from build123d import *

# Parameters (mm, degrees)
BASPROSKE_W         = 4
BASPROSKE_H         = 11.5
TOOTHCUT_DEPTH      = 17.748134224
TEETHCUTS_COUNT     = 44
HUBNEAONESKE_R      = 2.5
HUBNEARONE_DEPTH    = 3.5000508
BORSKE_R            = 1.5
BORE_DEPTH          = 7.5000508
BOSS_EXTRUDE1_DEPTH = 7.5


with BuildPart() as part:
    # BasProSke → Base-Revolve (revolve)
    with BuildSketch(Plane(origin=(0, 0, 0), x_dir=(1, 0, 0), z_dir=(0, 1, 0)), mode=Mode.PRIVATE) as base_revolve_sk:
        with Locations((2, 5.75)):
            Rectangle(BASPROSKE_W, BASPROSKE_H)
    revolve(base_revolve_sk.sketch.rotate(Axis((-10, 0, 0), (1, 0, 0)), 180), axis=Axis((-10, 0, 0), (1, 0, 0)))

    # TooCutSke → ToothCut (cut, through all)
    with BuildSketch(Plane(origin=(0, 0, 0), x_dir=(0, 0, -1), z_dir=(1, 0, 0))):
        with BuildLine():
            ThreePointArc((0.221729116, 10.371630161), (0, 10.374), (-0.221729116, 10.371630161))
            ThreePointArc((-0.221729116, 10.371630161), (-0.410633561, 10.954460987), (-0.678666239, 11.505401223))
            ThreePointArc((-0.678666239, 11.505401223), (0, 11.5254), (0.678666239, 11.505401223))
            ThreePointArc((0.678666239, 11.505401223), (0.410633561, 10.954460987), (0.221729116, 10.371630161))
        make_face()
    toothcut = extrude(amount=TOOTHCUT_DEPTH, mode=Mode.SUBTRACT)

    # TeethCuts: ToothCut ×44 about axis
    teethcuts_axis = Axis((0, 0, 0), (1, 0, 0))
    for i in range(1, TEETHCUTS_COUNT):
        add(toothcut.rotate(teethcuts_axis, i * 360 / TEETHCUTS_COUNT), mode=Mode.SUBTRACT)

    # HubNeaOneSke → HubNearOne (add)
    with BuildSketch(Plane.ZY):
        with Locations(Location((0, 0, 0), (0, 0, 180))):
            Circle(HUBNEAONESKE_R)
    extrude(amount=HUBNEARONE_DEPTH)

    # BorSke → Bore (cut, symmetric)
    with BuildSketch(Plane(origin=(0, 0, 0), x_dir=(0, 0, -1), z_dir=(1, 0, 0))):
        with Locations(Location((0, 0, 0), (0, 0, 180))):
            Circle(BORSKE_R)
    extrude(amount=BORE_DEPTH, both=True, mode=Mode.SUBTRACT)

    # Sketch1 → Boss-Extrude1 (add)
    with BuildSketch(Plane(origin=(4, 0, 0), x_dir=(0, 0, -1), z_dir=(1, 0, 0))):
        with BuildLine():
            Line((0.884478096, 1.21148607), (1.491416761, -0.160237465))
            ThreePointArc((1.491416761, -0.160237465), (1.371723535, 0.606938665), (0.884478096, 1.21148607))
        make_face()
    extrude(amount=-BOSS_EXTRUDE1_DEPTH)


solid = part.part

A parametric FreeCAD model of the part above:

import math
import FreeCAD as App
import Part
import Sketcher


def add_polygon(sketch, points):
    """Adds a closed chain of lines whose ends are joined by coincident constraints."""
    first, n = sketch.GeometryCount, len(points)
    for a, b in zip(points, points[1:] + points[:1]):
        sketch.addGeometry(Part.LineSegment(App.Vector(*a, 0), App.Vector(*b, 0)), False)
    for i in range(n):
        sketch.addConstraint(Sketcher.Constraint("Coincident", first + i, 2, first + (i + 1) % n, 1))

doc = App.newDocument("Part")
params = doc.addObject("Spreadsheet::Sheet", "Params")
for row, (alias, value) in enumerate([
    ("sketch1_width", "4 mm"),
    ("sketch1_height", "11.5 mm"),
    ("revolution_angle", "360 deg"),
    ("sketch2_radius", "4.4 mm"),
    ("sketch3_diameter", "5 mm"),
    ("pad1_length", "3.500051 mm"),
    ("sketch4_diameter", "3 mm"),
    ("pocket2_length", "15.000102 mm"),
    ("sketch5_radius", "1.5 mm"),
    ("sketch5_length", "1.5 mm"),
    ("pad2_length", "7.5 mm"),
], start=1):
    params.set(f"A{row}", alias)
    params.set(f"B{row}", "=" + value)
    params.setAlias(f"B{row}", alias)

body = doc.addObject("PartDesign::Body", "Body")

# Sketch on XZ plane
sketch1 = body.newObject("Sketcher::SketchObject", "Sketch")
sketch1.AttachmentSupport = (doc.getObject("XZ_Plane"), [""])
sketch1.MapMode = "FlatFace"
add_polygon(sketch1, [(0, -11.5), (0, 0), (4, 0), (4, -11.5)])  # lines 0-3
sketch1.addConstraint([
    Sketcher.Constraint("Vertical", 0),
    Sketcher.Constraint("Horizontal", 1),
    Sketcher.Constraint("Vertical", 2),
    Sketcher.Constraint("Horizontal", 3),
    Sketcher.Constraint("Coincident", 0, 2, -1, 1),
    Sketcher.Constraint("DistanceX", 1, 1, 1, 2, 4.0),
    Sketcher.Constraint("DistanceY", 0, 1, 0, 2, 11.5),
])
sketch1.setExpression("Constraints[9]", "Params.sketch1_width")
sketch1.setExpression("Constraints[10]", "Params.sketch1_height")
revolution = body.newObject("PartDesign::Revolution", "Revolution")
revolution.Profile = sketch1
revolution.ReferenceAxis = (sketch1, ["H_Axis"])
revolution.setExpression("Angle", "Params.revolution_angle")

# Sketch on YZ plane
sketch2 = body.newObject("Sketcher::SketchObject", "Sketch001")
sketch2.AttachmentSupport = (doc.getObject("YZ_Plane"), [""])
sketch2.MapMode = "FlatFace"
sketch2.addGeometry([
    Part.ArcOfCircle(Part.Circle(App.Vector(0.000001, 0, 0), App.Vector(0, 0, 1), 10.373999), math.radians(-1.224707), math.radians(1.224707)),
    Part.ArcOfCircle(Part.Circle(App.Vector(9.309708, -4.491661, 0), App.Vector(0, 0, 1), 4.4), math.radians(60.06474), math.radians(76.03401)),
    Part.ArcOfCircle(Part.Circle(App.Vector(0, 0, 0), App.Vector(0, 0, 1), 11.5254), math.radians(-3.37578), math.radians(3.37578)),
    Part.ArcOfCircle(Part.Circle(App.Vector(9.309708, 4.491661, 0), App.Vector(0, 0, 1), 4.4), math.radians(-76.03401), math.radians(-60.06474)),
], False)
sketch2.addConstraint([
    Sketcher.Constraint("Coincident", 0, 1, 1, 2),
    Sketcher.Constraint("Coincident", 1, 1, 2, 1),
    Sketcher.Constraint("Coincident", 2, 2, 3, 2),
    Sketcher.Constraint("Coincident", 3, 1, 0, 2),
    Sketcher.Constraint("Coincident", 0, 3, -1, 1),
    Sketcher.Constraint("Coincident", 2, 3, -1, 1),
    Sketcher.Constraint("Equal", 1, 3),
    Sketcher.Constraint("Symmetric", 1, 3, 3, 3, -1),
    Sketcher.Constraint("Radius", 1, 4.4),
    Sketcher.Constraint("Radius", 0, 10.373999),
    Sketcher.Constraint("Radius", 2, 11.5254),
    Sketcher.Constraint("DistanceX", -1, 1, 1, 1, 11.505401),
    Sketcher.Constraint("DistanceX", -1, 1, 1, 3, 9.309708),
])
sketch2.setExpression("Constraints[8]", "Params.sketch2_radius")
pocket1 = body.newObject("PartDesign::Pocket", "Pocket")
pocket1.Profile = sketch2
pocket1.Type = "ThroughAll"
pocket1.Reversed = True
doc.recompute()

polarpattern = body.newObject("PartDesign::PolarPattern", "PolarPattern")
polarpattern.Originals = [pocket1]
polarpattern.Axis = (doc.getObject("X_Axis"), [""])
polarpattern.Angle = 360
polarpattern.Occurrences = 44
body.Tip = polarpattern

# Sketch on YZ plane
sketch3 = body.newObject("Sketcher::SketchObject", "Sketch002")
sketch3.AttachmentSupport = (doc.getObject("YZ_Plane"), [""])
sketch3.MapMode = "FlatFace"
sketch3.addGeometry(Part.Circle(App.Vector(0, 0, 0), App.Vector(0, 0, 1), 2.5), False)
sketch3.addConstraint([
    Sketcher.Constraint("Coincident", 0, 3, -1, 1),
    Sketcher.Constraint("Diameter", 0, 5.0),
])
sketch3.setExpression("Constraints[1]", "Params.sketch3_diameter")
pad1 = body.newObject("PartDesign::Pad", "Pad")
pad1.Profile = sketch3
pad1.setExpression("Length", "Params.pad1_length")
pad1.Reversed = True

# Sketch on YZ plane
sketch4 = body.newObject("Sketcher::SketchObject", "Sketch003")
sketch4.AttachmentSupport = (doc.getObject("YZ_Plane"), [""])
sketch4.MapMode = "FlatFace"
sketch4.addGeometry(Part.Circle(App.Vector(0, 0, 0), App.Vector(0, 0, 1), 1.5), False)
sketch4.addConstraint([
    Sketcher.Constraint("Coincident", 0, 3, -1, 1),
    Sketcher.Constraint("Diameter", 0, 3.0),
])
sketch4.setExpression("Constraints[1]", "Params.sketch4_diameter")
pocket2 = body.newObject("PartDesign::Pocket", "Pocket001")
pocket2.Profile = sketch4
pocket2.setExpression("Length", "Params.pocket2_length")
pocket2.Midplane = True

# Sketch on YZ plane
sketch5 = body.newObject("Sketcher::SketchObject", "Sketch004")
sketch5.AttachmentSupport = (doc.getObject("YZ_Plane"), [""])
sketch5.MapMode = "FlatFace"
sketch5.AttachmentOffset = App.Placement(App.Vector(0, 0, 4), App.Rotation())
sketch5.addGeometry([
    Part.LineSegment(App.Vector(1.211486, -0.884478, 0), App.Vector(-0.160237, -1.491417, 0)),
    Part.ArcOfCircle(Part.Circle(App.Vector(0, 0, 0), App.Vector(0, 0, 1), 1.5), math.radians(-96.132321), math.radians(-36.132322)),
], False)
sketch5.addConstraint([
    Sketcher.Constraint("Coincident", 0, 1, 1, 2),
    Sketcher.Constraint("Coincident", 1, 1, 0, 2),
    Sketcher.Constraint("Coincident", 1, 3, -1, 1),
    Sketcher.Constraint("Radius", 1, 1.5),
    Sketcher.Constraint("Distance", 0, 1.5),
    Sketcher.Constraint("DistanceY", 0, 1, -1, 1, 0.884478),
])
sketch5.setExpression("Constraints[3]", "Params.sketch5_radius")
sketch5.setExpression("Constraints[4]", "Params.sketch5_length")
pad2 = body.newObject("PartDesign::Pad", "Pad001")
pad2.Profile = sketch5
pad2.setExpression("Length", "Params.pad2_length")
pad2.Reversed = True

doc.recompute()
